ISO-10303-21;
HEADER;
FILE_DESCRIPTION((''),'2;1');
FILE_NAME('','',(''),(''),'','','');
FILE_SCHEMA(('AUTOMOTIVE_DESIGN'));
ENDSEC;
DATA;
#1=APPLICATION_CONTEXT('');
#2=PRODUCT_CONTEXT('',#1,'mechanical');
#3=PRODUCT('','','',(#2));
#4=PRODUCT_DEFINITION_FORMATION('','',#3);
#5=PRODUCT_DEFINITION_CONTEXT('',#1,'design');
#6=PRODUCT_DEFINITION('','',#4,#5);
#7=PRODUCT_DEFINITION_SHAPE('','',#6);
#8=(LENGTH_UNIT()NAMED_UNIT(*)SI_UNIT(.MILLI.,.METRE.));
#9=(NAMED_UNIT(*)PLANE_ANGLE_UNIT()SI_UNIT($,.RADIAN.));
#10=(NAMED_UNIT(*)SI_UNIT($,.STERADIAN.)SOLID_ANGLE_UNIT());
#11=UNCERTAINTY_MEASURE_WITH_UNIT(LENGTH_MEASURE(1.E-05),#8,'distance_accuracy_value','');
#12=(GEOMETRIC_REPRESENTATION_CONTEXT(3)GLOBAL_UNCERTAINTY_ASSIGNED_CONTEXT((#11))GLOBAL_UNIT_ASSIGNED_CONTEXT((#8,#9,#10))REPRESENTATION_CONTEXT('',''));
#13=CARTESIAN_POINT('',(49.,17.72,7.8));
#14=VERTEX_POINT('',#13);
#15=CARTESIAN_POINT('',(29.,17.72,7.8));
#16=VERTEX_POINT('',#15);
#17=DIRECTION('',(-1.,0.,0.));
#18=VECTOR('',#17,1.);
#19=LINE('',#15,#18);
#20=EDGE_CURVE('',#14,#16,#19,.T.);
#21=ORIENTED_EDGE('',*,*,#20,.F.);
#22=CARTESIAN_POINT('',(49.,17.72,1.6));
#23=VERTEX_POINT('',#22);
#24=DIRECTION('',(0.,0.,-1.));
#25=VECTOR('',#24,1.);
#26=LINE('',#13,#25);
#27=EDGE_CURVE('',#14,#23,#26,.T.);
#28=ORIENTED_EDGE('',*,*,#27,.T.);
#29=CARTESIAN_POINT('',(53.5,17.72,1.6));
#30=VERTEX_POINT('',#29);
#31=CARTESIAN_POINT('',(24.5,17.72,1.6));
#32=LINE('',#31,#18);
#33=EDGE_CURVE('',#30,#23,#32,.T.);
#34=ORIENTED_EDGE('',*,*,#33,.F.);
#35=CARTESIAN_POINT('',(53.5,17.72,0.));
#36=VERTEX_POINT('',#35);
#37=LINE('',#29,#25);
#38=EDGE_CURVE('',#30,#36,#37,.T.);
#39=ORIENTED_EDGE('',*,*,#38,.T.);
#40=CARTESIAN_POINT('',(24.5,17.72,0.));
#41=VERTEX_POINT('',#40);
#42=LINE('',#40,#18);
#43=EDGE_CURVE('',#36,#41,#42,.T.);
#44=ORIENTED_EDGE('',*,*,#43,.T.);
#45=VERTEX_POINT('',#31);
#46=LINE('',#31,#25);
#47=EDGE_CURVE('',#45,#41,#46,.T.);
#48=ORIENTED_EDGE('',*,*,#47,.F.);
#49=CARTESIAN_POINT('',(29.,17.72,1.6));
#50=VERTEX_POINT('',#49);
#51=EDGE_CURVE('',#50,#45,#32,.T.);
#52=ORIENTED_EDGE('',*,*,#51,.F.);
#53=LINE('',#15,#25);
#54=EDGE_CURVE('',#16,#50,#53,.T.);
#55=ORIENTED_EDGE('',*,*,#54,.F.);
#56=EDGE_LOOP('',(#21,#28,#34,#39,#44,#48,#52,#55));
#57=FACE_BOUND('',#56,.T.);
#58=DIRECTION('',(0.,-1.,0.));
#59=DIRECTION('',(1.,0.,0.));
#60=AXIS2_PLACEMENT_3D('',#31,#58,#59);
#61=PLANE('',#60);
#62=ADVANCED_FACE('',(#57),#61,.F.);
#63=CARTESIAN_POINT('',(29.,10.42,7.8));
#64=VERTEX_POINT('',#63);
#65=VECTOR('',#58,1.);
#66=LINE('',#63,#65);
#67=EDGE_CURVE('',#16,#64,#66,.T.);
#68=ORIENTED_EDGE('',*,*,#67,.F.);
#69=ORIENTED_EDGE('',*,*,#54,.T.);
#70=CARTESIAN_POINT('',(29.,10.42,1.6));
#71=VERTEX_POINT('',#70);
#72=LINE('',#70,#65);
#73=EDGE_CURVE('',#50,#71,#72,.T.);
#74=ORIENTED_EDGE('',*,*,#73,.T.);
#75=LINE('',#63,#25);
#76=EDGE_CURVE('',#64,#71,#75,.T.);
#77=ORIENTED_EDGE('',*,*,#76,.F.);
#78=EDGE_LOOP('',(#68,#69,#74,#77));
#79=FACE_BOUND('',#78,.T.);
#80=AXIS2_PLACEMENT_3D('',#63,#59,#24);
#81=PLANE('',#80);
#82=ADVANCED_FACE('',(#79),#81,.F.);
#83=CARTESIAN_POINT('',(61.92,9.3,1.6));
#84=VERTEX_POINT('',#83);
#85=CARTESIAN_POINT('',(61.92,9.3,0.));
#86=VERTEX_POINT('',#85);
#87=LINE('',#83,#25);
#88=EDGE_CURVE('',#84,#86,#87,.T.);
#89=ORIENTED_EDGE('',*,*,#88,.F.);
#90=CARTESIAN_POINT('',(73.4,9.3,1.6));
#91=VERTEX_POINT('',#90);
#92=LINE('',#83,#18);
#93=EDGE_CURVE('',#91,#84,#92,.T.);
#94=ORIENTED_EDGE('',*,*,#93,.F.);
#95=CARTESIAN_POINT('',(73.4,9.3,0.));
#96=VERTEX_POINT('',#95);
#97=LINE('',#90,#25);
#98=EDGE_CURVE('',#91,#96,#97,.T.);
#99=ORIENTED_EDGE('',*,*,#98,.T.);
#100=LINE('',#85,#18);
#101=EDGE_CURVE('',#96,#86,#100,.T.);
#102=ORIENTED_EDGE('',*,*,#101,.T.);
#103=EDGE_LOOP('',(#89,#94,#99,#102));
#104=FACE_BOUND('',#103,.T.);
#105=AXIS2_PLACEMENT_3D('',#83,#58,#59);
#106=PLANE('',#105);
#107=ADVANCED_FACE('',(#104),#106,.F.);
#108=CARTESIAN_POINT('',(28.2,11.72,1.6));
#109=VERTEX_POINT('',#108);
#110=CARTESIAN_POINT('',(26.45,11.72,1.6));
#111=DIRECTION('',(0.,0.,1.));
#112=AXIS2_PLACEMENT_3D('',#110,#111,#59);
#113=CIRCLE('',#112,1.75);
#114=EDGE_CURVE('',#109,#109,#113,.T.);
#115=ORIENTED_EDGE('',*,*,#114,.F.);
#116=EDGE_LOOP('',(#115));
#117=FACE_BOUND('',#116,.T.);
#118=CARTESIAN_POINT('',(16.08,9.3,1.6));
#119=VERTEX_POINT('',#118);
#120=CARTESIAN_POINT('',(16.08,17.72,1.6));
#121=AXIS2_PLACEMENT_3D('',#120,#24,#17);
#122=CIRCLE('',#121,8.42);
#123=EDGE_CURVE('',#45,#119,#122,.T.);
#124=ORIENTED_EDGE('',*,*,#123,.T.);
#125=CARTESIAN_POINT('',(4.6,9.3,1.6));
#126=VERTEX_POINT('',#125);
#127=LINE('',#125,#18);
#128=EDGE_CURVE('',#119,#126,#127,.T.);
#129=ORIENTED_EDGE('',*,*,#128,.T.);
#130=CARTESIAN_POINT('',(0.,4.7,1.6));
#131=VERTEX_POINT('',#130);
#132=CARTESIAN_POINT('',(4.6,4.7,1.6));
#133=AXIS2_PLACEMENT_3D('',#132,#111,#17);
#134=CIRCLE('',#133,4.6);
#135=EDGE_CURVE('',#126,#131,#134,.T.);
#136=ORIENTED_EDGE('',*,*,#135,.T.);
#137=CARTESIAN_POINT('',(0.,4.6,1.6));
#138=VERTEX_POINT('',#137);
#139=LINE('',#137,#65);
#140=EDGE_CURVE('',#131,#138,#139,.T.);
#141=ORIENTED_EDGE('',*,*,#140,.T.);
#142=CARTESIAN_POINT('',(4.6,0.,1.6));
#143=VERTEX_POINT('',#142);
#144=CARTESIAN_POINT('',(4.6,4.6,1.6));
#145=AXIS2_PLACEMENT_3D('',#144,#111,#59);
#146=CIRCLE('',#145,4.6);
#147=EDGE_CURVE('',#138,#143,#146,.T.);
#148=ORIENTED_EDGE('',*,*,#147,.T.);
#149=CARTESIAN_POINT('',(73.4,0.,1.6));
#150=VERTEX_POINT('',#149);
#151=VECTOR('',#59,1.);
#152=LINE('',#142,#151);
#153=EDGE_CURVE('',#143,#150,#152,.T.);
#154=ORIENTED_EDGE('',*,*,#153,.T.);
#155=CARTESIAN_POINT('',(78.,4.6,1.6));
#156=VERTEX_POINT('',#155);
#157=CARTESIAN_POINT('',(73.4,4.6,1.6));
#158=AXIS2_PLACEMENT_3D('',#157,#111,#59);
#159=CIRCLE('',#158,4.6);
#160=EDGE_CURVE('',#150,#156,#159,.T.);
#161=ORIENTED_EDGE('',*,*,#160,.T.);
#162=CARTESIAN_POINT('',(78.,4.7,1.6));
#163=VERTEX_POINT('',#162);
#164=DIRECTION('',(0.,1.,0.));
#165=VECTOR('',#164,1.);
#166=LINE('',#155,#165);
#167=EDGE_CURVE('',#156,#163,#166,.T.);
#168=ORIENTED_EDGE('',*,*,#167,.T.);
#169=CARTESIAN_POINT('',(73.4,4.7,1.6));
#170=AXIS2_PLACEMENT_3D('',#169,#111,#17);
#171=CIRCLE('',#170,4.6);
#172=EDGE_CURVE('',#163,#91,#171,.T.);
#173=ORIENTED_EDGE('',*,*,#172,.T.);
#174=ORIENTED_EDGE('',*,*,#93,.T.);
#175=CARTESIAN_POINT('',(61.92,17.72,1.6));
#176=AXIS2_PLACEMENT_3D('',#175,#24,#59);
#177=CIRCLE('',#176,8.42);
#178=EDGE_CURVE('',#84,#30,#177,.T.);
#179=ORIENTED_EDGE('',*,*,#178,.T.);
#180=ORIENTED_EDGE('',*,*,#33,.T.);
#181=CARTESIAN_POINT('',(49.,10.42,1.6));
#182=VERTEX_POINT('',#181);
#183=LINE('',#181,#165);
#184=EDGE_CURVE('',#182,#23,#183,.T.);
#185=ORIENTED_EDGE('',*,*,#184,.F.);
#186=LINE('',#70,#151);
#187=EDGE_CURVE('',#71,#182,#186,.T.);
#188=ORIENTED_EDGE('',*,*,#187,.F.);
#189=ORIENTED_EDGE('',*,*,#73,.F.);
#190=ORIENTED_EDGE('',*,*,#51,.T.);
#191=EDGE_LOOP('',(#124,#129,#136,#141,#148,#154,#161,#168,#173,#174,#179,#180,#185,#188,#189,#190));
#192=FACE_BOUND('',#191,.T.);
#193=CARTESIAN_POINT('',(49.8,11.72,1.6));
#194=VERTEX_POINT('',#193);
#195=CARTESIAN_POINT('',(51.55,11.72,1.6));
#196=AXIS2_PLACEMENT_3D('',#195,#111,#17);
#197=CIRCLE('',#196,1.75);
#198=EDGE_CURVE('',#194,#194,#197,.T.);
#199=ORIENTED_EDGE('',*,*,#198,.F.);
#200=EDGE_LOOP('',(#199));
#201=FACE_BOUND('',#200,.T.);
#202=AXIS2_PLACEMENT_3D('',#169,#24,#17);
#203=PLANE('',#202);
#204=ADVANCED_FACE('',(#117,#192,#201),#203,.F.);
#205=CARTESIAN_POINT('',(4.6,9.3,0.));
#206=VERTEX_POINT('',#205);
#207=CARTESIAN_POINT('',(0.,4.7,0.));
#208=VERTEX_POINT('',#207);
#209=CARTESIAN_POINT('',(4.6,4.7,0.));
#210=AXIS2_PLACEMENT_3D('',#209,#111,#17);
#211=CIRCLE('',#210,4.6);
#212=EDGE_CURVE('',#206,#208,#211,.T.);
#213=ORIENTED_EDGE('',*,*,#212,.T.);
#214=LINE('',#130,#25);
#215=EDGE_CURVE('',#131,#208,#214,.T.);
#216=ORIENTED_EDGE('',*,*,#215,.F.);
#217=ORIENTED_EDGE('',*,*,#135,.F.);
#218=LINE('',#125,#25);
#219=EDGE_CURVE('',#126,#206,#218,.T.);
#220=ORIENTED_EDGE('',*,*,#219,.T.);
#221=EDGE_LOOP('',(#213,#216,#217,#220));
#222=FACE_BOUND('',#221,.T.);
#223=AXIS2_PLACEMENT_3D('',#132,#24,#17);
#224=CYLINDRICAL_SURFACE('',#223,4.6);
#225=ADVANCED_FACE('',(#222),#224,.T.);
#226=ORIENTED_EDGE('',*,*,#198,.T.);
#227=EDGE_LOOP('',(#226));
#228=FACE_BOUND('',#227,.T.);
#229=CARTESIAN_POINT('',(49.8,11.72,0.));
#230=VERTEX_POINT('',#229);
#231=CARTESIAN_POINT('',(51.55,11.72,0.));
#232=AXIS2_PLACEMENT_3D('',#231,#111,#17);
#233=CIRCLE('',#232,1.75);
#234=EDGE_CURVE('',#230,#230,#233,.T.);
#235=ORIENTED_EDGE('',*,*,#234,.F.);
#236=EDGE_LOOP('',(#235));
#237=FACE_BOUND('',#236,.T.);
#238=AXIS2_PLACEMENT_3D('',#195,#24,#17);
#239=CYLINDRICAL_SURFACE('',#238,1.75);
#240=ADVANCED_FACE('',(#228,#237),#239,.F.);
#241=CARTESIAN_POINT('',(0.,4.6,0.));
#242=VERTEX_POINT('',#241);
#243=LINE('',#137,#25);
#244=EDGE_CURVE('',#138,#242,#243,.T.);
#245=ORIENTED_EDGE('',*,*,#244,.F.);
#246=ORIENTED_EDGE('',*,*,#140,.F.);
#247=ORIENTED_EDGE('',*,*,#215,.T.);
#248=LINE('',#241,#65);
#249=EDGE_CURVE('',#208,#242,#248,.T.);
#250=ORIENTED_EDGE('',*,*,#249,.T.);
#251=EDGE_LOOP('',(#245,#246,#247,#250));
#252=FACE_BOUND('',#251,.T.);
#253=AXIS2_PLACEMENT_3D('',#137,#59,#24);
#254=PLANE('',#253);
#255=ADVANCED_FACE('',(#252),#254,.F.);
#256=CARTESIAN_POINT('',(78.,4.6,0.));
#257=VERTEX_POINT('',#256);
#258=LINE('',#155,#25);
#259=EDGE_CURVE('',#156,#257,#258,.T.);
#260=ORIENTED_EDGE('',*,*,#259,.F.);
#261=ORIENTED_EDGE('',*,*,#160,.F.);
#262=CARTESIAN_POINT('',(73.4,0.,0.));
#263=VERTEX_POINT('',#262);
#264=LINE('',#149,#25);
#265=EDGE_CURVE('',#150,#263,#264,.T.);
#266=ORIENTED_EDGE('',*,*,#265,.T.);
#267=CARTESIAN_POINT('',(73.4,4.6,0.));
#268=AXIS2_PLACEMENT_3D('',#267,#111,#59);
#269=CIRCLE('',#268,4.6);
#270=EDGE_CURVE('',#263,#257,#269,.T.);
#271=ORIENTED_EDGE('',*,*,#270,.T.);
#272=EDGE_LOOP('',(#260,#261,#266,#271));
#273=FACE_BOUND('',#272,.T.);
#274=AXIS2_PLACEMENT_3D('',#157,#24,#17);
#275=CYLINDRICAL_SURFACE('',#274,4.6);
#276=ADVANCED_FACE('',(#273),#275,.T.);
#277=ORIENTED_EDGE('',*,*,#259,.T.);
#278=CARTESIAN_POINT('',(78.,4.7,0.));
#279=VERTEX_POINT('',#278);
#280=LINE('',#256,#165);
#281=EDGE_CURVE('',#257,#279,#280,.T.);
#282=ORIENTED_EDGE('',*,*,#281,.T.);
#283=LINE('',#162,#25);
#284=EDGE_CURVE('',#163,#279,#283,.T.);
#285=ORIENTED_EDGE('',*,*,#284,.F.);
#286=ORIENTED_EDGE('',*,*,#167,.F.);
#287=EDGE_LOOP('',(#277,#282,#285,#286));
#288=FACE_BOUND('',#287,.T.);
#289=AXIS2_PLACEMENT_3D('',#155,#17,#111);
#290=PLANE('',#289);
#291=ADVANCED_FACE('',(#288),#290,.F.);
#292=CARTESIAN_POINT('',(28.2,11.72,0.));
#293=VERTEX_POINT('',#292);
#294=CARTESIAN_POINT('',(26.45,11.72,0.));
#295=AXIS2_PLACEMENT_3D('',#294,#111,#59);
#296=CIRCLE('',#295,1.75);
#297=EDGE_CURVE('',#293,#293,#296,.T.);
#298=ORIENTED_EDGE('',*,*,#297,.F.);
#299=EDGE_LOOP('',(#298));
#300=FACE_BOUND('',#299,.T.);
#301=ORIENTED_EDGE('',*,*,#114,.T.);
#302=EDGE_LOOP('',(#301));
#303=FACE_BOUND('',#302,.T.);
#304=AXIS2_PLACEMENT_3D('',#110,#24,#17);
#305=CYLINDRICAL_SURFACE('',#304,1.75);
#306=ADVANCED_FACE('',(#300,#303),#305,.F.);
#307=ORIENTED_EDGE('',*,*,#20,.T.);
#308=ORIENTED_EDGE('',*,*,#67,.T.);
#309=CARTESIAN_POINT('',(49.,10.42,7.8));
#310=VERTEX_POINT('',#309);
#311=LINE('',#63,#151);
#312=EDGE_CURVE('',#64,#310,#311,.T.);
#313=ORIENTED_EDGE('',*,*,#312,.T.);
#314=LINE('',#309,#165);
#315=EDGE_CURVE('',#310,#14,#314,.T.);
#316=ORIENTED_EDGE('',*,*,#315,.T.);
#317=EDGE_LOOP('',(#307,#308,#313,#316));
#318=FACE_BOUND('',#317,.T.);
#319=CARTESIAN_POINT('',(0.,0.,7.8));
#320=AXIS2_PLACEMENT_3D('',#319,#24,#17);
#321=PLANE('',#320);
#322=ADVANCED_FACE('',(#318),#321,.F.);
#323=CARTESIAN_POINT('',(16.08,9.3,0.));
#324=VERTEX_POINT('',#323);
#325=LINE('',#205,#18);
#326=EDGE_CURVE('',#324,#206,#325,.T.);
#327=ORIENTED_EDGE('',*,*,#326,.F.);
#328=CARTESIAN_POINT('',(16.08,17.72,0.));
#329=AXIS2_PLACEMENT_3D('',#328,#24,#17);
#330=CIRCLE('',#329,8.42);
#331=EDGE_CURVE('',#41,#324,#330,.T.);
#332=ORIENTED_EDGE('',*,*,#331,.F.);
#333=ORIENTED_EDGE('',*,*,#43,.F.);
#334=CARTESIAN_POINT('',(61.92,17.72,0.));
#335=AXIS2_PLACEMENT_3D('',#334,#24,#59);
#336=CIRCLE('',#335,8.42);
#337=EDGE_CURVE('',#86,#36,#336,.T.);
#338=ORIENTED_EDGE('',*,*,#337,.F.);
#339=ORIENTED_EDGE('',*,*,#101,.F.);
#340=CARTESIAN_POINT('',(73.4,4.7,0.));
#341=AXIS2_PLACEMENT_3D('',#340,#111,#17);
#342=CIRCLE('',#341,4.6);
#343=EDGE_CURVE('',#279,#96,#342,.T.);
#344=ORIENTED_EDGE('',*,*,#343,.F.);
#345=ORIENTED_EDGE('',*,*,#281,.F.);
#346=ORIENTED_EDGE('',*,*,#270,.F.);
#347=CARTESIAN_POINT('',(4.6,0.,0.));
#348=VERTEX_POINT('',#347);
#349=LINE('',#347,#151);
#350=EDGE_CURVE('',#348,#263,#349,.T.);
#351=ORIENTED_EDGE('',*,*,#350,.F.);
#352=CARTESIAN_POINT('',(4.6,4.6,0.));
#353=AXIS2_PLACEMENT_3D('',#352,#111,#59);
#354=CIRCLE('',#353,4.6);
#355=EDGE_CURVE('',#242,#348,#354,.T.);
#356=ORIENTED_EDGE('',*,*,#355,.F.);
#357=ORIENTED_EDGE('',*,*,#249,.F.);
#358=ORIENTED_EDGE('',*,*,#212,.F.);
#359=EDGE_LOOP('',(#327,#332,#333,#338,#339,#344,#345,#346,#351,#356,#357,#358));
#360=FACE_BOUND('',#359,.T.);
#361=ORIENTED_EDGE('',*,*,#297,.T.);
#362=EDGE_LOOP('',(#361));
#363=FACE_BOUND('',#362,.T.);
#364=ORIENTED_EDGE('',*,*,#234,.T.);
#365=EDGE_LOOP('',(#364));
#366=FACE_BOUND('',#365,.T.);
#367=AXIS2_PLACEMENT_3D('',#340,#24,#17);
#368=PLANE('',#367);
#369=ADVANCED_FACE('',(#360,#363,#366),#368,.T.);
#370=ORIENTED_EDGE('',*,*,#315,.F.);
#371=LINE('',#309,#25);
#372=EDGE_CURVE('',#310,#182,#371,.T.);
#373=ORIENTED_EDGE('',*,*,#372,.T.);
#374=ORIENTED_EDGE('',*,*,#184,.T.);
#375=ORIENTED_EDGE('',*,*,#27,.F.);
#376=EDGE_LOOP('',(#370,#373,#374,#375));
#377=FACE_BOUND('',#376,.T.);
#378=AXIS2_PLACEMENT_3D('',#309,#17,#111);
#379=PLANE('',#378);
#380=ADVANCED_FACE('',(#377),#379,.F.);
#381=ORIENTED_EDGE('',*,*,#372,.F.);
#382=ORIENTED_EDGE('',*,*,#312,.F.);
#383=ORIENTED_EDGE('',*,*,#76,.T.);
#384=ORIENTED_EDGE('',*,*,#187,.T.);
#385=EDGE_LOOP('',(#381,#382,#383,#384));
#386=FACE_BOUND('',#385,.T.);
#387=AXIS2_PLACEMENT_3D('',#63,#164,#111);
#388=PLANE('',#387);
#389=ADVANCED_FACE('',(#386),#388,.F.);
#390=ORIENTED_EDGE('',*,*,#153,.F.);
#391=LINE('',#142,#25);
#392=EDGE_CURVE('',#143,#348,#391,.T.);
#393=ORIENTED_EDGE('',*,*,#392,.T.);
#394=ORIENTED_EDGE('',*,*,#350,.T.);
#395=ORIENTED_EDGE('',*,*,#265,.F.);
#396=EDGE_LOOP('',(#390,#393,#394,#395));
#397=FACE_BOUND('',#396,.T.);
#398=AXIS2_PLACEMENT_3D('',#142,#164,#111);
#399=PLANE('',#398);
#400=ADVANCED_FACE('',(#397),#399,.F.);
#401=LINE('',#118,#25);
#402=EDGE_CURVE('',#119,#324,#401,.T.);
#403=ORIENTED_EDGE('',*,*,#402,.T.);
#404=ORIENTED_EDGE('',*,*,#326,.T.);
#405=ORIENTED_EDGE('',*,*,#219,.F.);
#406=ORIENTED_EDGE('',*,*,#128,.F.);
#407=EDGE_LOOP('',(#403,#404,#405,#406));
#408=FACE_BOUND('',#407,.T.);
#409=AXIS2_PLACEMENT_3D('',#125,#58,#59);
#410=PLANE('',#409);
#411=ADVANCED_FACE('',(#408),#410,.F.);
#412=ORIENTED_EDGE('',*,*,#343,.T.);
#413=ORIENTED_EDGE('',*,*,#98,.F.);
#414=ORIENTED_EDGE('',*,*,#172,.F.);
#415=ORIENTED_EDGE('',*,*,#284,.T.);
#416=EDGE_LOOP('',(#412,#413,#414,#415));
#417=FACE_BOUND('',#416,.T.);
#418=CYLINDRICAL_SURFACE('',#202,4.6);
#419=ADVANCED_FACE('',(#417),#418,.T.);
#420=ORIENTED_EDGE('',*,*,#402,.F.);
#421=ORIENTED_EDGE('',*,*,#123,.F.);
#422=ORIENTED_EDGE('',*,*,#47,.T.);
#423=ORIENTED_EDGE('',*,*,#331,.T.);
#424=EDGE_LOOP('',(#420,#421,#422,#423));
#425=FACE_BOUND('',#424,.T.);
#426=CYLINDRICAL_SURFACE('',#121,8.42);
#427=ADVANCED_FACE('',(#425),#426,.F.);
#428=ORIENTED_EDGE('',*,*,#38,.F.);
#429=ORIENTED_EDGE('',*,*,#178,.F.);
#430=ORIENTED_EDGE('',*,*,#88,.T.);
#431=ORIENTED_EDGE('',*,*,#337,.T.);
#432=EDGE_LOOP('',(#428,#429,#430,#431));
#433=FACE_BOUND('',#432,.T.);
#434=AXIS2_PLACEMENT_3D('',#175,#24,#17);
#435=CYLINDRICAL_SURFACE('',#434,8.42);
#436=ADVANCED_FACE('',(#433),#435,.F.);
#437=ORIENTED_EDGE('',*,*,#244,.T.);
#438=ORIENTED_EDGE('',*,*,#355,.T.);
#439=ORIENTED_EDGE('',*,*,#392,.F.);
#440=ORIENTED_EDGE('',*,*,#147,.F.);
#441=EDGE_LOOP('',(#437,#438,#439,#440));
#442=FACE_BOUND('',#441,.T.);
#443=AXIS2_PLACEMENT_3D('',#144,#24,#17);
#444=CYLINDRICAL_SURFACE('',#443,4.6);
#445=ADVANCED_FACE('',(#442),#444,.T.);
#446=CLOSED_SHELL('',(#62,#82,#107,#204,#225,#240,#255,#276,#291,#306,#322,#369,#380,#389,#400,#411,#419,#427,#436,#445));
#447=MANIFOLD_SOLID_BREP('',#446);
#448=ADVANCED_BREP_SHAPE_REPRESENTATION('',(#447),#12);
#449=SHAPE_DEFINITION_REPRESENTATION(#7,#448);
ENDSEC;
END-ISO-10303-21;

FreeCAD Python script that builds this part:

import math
import FreeCAD as App
import Part
import Sketcher
from FreeCAD import Vector

doc = App.newDocument("Part")
body = doc.addObject("PartDesign::Body", "Body")

sketch1 = body.newObject("Sketcher::SketchObject", "Sketch")
sketch1.AttachmentSupport = (doc.getObject("XY_Plane"), [""])
sketch1.MapMode = "FlatFace"
sketch1.addGeometry([
    Part.LineSegment(Vector(4.6, 0, 0), Vector(73.4, 0, 0)),
    Part.ArcOfCircle(Part.Circle(Vector(73.4, 4.6, 0), Vector(0, 0, 1), 4.6), math.radians(-90), math.radians(0)),
    Part.LineSegment(Vector(78, 4.6, 0), Vector(78, 4.7, 0)),
    Part.ArcOfCircle(Part.Circle(Vector(73.4, 4.7, 0), Vector(0, 0, 1), 4.6), math.radians(0), math.radians(90)),
    Part.LineSegment(Vector(73.4, 9.3, 0), Vector(61.92, 9.3, 0)),
    Part.ArcOfCircle(Part.Circle(Vector(61.92, 17.72, 0), Vector(0, 0, 1), 8.42), math.radians(180), math.radians(270)),
    Part.LineSegment(Vector(53.5, 17.72, 0), Vector(24.5, 17.72, 0)),
    Part.ArcOfCircle(Part.Circle(Vector(16.08, 17.72, 0), Vector(0, 0, 1), 8.42), math.radians(-90), math.radians(0)),
    Part.LineSegment(Vector(16.08, 9.3, 0), Vector(4.6, 9.3, 0)),
    Part.ArcOfCircle(Part.Circle(Vector(4.6, 4.7, 0), Vector(0, 0, 1), 4.6), math.radians(90), math.radians(180)),
    Part.LineSegment(Vector(0, 4.7, 0), Vector(0, 4.6, 0)),
    Part.ArcOfCircle(Part.Circle(Vector(4.6, 4.6, 0), Vector(0, 0, 1), 4.6), math.radians(-180), math.radians(-90)),
    Part.Circle(Vector(26.45, 11.72, 0), Vector(0, 0, 1), 1.75),
    Part.Circle(Vector(51.55, 11.72, 0), Vector(0, 0, 1), 1.75),
], False)
sketch1.addConstraint([
    Sketcher.Constraint("Tangent", 0, 2, 1, 1),
    Sketcher.Constraint("Tangent", 1, 2, 2, 1),
    Sketcher.Constraint("Tangent", 2, 2, 3, 1),
    Sketcher.Constraint("Tangent", 3, 2, 4, 1),
    Sketcher.Constraint("Tangent", 4, 2, 5, 2),
    Sketcher.Constraint("Coincident", 5, 1, 6, 1),
    Sketcher.Constraint("Coincident", 6, 2, 7, 2),
    Sketcher.Constraint("Tangent", 7, 1, 8, 1),
    Sketcher.Constraint("Tangent", 8, 2, 9, 1),
    Sketcher.Constraint("Tangent", 9, 2, 10, 1),
    Sketcher.Constraint("Tangent", 10, 2, 11, 1),
    Sketcher.Constraint("Tangent", 11, 2, 0, 1),
    Sketcher.Constraint("Horizontal", 0),
    Sketcher.Constraint("Vertical", 2),
    Sketcher.Constraint("Horizontal", 4),
    Sketcher.Constraint("Horizontal", 6),
    Sketcher.Constraint("Horizontal", 8),
    Sketcher.Constraint("Vertical", 10),
    Sketcher.Constraint("Equal", 1, 3),
    Sketcher.Constraint("Equal", 5, 7),
    Sketcher.Constraint("Equal", 3, 9),
    Sketcher.Constraint("Equal", 9, 11),
    Sketcher.Constraint("Equal", 12, 13),
    Sketcher.Constraint("PointOnObject", 0, 2, -1),
    Sketcher.Constraint("PointOnObject", 9, 2, -2),
    Sketcher.Constraint("Horizontal", 5, 3, 7, 3),
    Sketcher.Constraint("Horizontal", 12, 3, 13, 3),
    Sketcher.Constraint("Horizontal", 7, 3, 5, 1),
    Sketcher.Constraint("Equal", 4, 8),
    Sketcher.Constraint("Diameter", 12, 3.5),
    Sketcher.Constraint("Radius", 1, 4.6),
    Sketcher.Constraint("DistanceX", 6, 2, 6, 1, 29.0),
    Sketcher.Constraint("Radius", 5, 8.42),
    Sketcher.Constraint("DistanceX", 0, 1, 0, 2, 68.8),
    Sketcher.Constraint("DistanceY", 2, 1, 2, 2, 0.1),
    Sketcher.Constraint("DistanceY", 12, 3, 7, 3, 6.0),
    Sketcher.Constraint("DistanceX", 12, 3, 13, 3, 25.1),
    Sketcher.Constraint("DistanceX", -1, 1, 12, 3, 26.45),
])
pad1 = body.newObject("PartDesign::Pad", "Pad")
pad1.Profile = sketch1
pad1.Length = 1.6

sketch2 = body.newObject("Sketcher::SketchObject", "Sketch001")
sketch2.AttachmentSupport = (doc.getObject("XY_Plane"), [""])
sketch2.MapMode = "FlatFace"
sketch2.AttachmentOffset = App.Placement(Vector(0, 0, 1.6), App.Rotation())
sketch2.addGeometry([
    Part.LineSegment(Vector(29, 17.72, 0), Vector(29, 10.42, 0)),
    Part.LineSegment(Vector(29, 10.42, 0), Vector(49, 10.42, 0)),
    Part.LineSegment(Vector(49, 10.42, 0), Vector(49, 17.72, 0)),
    Part.LineSegment(Vector(49, 17.72, 0), Vector(29, 17.72, 0)),
], False)
sketch2.addConstraint([
    Sketcher.Constraint("Coincident", 0, 2, 1, 1),
    Sketcher.Constraint("Coincident", 1, 2, 2, 1),
    Sketcher.Constraint("Coincident", 2, 2, 3, 1),
    Sketcher.Constraint("Coincident", 3, 2, 0, 1),
    Sketcher.Constraint("Vertical", 0),
    Sketcher.Constraint("Horizontal", 1),
    Sketcher.Constraint("Vertical", 2),
    Sketcher.Constraint("Horizontal", 3),
    Sketcher.Constraint("DistanceX", 1, 1, 1, 2, 20.0),
    Sketcher.Constraint("DistanceY", 0, 2, 0, 1, 7.3),
    Sketcher.Constraint("DistanceX", -1, 1, 0, 2, 29.0),
    Sketcher.Constraint("DistanceY", -1, 1, 0, 2, 10.42),
])
pad2 = body.newObject("PartDesign::Pad", "Pad001")
pad2.Profile = sketch2
pad2.Length = 6.2

doc.recompute()
